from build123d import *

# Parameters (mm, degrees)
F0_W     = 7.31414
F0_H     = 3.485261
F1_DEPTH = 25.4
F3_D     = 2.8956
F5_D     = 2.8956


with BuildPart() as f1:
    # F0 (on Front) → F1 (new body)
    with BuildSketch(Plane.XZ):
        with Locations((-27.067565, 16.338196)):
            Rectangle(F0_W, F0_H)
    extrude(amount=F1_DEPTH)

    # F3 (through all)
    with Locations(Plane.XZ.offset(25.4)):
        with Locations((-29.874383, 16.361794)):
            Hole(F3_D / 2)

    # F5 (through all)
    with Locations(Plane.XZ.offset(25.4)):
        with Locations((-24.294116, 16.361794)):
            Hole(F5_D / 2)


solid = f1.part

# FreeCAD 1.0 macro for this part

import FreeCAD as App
import Part
import Sketcher
from FreeCAD import Vector
Q = App.Units.Quantity

doc = App.newDocument("Part")
body = doc.addObject("PartDesign::Body", "Body")

# Sketch on XZ plane
sketch1 = doc.addObject("Sketcher::SketchObject", "Sketch")
body.addObject(sketch1)
sketch1.AttachmentSupport = (doc.XZ_Plane, [""])
sketch1.MapMode = "FlatFace"
sketch1.addGeometry(Part.LineSegment(Vector(-30.7, 18.1, 0), Vector(-30.7, 14.6, 0)), False)
sketch1.addGeometry(Part.LineSegment(Vector(-30.7, 14.6, 0), Vector(-23.4, 14.6, 0)), False)
sketch1.addGeometry(Part.LineSegment(Vector(-23.4, 14.6, 0), Vector(-23.4, 18.1, 0)), False)
sketch1.addGeometry(Part.LineSegment(Vector(-23.4, 18.1, 0), Vector(-30.7, 18.1, 0)), False)
sketch1.addConstraint(Sketcher.Constraint("Coincident", 0, 2, 1, 1))
sketch1.addConstraint(Sketcher.Constraint("Coincident", 1, 2, 2, 1))
sketch1.addConstraint(Sketcher.Constraint("Coincident", 2, 2, 3, 1))
sketch1.addConstraint(Sketcher.Constraint("Coincident", 3, 2, 0, 1))
sketch1.addConstraint(Sketcher.Constraint("Vertical", 0))
sketch1.addConstraint(Sketcher.Constraint("Horizontal", 1))
sketch1.addConstraint(Sketcher.Constraint("Vertical", 2))
sketch1.addConstraint(Sketcher.Constraint("Horizontal", 3))
sketch1.addConstraint(Sketcher.Constraint("DistanceX", 1, 1, 1, 2, 7.31414))
sketch1.addConstraint(Sketcher.Constraint("DistanceY", 0, 2, 0, 1, 3.485261))
sketch1.addConstraint(Sketcher.Constraint("DistanceX", 0, 2, -1, 1, 30.724635))
sketch1.addConstraint(Sketcher.Constraint("DistanceY", -1, 1, 0, 2, 14.595565))
pad1 = doc.addObject("PartDesign::Pad", "Pad")
body.addObject(pad1)
pad1.Profile = sketch1
pad1.Length = Q("1 in")

# Sketch on XZ plane
sketch2 = doc.addObject("Sketcher::SketchObject", "Sketch001")
body.addObject(sketch2)
sketch2.AttachmentSupport = (doc.XZ_Plane, [""])
sketch2.MapMode = "FlatFace"
sketch2.AttachmentOffset = App.Placement(Vector(0, 0, 1 * 25.4), App.Rotation())
sketch2.addGeometry(Part.Circle(Vector(-29.9, 16.4, 0), Vector(0, 0, 1), 1.4), False)
sketch2.addConstraint(Sketcher.Constraint("Diameter", 0, Q("0.114 in")))
sketch2.addConstraint(Sketcher.Constraint("DistanceX", 0, 3, -1, 1, 29.874383))
sketch2.addConstraint(Sketcher.Constraint("DistanceY", -1, 1, 0, 3, 16.361794))
doc.recompute()
hole = doc.addObject("PartDesign::Hole", "Hole")
body.addObject(hole)
hole.Profile = sketch2
hole.ThreadType = "None"
hole.Diameter = Q("0.114 in")
hole.DepthType = "ThroughAll"

# Sketch on XZ plane
sketch3 = doc.addObject("Sketcher::SketchObject", "Sketch002")
body.addObject(sketch3)
sketch3.AttachmentSupport = (doc.XZ_Plane, [""])
sketch3.MapMode = "FlatFace"
sketch3.AttachmentOffset = App.Placement(Vector(0, 0, 1 * 25.4), App.Rotation())
sketch3.addGeometry(Part.Circle(Vector(-24.3, 16.4, 0), Vector(0, 0, 1), 1.4), False)
sketch3.addConstraint(Sketcher.Constraint("Diameter", 0, Q("0.114 in")))
sketch3.addConstraint(Sketcher.Constraint("DistanceX", 0, 3, -1, 1, 24.294116))
sketch3.addConstraint(Sketcher.Constraint("DistanceY", -1, 1, 0, 3, 16.361794))
doc.recompute()
hole2 = doc.addObject("PartDesign::Hole", "Hole001")
body.addObject(hole2)
hole2.Profile = sketch3
hole2.ThreadType = "None"
hole2.Diameter = Q("0.114 in")
hole2.DepthType = "ThroughAll"

doc.recompute()
